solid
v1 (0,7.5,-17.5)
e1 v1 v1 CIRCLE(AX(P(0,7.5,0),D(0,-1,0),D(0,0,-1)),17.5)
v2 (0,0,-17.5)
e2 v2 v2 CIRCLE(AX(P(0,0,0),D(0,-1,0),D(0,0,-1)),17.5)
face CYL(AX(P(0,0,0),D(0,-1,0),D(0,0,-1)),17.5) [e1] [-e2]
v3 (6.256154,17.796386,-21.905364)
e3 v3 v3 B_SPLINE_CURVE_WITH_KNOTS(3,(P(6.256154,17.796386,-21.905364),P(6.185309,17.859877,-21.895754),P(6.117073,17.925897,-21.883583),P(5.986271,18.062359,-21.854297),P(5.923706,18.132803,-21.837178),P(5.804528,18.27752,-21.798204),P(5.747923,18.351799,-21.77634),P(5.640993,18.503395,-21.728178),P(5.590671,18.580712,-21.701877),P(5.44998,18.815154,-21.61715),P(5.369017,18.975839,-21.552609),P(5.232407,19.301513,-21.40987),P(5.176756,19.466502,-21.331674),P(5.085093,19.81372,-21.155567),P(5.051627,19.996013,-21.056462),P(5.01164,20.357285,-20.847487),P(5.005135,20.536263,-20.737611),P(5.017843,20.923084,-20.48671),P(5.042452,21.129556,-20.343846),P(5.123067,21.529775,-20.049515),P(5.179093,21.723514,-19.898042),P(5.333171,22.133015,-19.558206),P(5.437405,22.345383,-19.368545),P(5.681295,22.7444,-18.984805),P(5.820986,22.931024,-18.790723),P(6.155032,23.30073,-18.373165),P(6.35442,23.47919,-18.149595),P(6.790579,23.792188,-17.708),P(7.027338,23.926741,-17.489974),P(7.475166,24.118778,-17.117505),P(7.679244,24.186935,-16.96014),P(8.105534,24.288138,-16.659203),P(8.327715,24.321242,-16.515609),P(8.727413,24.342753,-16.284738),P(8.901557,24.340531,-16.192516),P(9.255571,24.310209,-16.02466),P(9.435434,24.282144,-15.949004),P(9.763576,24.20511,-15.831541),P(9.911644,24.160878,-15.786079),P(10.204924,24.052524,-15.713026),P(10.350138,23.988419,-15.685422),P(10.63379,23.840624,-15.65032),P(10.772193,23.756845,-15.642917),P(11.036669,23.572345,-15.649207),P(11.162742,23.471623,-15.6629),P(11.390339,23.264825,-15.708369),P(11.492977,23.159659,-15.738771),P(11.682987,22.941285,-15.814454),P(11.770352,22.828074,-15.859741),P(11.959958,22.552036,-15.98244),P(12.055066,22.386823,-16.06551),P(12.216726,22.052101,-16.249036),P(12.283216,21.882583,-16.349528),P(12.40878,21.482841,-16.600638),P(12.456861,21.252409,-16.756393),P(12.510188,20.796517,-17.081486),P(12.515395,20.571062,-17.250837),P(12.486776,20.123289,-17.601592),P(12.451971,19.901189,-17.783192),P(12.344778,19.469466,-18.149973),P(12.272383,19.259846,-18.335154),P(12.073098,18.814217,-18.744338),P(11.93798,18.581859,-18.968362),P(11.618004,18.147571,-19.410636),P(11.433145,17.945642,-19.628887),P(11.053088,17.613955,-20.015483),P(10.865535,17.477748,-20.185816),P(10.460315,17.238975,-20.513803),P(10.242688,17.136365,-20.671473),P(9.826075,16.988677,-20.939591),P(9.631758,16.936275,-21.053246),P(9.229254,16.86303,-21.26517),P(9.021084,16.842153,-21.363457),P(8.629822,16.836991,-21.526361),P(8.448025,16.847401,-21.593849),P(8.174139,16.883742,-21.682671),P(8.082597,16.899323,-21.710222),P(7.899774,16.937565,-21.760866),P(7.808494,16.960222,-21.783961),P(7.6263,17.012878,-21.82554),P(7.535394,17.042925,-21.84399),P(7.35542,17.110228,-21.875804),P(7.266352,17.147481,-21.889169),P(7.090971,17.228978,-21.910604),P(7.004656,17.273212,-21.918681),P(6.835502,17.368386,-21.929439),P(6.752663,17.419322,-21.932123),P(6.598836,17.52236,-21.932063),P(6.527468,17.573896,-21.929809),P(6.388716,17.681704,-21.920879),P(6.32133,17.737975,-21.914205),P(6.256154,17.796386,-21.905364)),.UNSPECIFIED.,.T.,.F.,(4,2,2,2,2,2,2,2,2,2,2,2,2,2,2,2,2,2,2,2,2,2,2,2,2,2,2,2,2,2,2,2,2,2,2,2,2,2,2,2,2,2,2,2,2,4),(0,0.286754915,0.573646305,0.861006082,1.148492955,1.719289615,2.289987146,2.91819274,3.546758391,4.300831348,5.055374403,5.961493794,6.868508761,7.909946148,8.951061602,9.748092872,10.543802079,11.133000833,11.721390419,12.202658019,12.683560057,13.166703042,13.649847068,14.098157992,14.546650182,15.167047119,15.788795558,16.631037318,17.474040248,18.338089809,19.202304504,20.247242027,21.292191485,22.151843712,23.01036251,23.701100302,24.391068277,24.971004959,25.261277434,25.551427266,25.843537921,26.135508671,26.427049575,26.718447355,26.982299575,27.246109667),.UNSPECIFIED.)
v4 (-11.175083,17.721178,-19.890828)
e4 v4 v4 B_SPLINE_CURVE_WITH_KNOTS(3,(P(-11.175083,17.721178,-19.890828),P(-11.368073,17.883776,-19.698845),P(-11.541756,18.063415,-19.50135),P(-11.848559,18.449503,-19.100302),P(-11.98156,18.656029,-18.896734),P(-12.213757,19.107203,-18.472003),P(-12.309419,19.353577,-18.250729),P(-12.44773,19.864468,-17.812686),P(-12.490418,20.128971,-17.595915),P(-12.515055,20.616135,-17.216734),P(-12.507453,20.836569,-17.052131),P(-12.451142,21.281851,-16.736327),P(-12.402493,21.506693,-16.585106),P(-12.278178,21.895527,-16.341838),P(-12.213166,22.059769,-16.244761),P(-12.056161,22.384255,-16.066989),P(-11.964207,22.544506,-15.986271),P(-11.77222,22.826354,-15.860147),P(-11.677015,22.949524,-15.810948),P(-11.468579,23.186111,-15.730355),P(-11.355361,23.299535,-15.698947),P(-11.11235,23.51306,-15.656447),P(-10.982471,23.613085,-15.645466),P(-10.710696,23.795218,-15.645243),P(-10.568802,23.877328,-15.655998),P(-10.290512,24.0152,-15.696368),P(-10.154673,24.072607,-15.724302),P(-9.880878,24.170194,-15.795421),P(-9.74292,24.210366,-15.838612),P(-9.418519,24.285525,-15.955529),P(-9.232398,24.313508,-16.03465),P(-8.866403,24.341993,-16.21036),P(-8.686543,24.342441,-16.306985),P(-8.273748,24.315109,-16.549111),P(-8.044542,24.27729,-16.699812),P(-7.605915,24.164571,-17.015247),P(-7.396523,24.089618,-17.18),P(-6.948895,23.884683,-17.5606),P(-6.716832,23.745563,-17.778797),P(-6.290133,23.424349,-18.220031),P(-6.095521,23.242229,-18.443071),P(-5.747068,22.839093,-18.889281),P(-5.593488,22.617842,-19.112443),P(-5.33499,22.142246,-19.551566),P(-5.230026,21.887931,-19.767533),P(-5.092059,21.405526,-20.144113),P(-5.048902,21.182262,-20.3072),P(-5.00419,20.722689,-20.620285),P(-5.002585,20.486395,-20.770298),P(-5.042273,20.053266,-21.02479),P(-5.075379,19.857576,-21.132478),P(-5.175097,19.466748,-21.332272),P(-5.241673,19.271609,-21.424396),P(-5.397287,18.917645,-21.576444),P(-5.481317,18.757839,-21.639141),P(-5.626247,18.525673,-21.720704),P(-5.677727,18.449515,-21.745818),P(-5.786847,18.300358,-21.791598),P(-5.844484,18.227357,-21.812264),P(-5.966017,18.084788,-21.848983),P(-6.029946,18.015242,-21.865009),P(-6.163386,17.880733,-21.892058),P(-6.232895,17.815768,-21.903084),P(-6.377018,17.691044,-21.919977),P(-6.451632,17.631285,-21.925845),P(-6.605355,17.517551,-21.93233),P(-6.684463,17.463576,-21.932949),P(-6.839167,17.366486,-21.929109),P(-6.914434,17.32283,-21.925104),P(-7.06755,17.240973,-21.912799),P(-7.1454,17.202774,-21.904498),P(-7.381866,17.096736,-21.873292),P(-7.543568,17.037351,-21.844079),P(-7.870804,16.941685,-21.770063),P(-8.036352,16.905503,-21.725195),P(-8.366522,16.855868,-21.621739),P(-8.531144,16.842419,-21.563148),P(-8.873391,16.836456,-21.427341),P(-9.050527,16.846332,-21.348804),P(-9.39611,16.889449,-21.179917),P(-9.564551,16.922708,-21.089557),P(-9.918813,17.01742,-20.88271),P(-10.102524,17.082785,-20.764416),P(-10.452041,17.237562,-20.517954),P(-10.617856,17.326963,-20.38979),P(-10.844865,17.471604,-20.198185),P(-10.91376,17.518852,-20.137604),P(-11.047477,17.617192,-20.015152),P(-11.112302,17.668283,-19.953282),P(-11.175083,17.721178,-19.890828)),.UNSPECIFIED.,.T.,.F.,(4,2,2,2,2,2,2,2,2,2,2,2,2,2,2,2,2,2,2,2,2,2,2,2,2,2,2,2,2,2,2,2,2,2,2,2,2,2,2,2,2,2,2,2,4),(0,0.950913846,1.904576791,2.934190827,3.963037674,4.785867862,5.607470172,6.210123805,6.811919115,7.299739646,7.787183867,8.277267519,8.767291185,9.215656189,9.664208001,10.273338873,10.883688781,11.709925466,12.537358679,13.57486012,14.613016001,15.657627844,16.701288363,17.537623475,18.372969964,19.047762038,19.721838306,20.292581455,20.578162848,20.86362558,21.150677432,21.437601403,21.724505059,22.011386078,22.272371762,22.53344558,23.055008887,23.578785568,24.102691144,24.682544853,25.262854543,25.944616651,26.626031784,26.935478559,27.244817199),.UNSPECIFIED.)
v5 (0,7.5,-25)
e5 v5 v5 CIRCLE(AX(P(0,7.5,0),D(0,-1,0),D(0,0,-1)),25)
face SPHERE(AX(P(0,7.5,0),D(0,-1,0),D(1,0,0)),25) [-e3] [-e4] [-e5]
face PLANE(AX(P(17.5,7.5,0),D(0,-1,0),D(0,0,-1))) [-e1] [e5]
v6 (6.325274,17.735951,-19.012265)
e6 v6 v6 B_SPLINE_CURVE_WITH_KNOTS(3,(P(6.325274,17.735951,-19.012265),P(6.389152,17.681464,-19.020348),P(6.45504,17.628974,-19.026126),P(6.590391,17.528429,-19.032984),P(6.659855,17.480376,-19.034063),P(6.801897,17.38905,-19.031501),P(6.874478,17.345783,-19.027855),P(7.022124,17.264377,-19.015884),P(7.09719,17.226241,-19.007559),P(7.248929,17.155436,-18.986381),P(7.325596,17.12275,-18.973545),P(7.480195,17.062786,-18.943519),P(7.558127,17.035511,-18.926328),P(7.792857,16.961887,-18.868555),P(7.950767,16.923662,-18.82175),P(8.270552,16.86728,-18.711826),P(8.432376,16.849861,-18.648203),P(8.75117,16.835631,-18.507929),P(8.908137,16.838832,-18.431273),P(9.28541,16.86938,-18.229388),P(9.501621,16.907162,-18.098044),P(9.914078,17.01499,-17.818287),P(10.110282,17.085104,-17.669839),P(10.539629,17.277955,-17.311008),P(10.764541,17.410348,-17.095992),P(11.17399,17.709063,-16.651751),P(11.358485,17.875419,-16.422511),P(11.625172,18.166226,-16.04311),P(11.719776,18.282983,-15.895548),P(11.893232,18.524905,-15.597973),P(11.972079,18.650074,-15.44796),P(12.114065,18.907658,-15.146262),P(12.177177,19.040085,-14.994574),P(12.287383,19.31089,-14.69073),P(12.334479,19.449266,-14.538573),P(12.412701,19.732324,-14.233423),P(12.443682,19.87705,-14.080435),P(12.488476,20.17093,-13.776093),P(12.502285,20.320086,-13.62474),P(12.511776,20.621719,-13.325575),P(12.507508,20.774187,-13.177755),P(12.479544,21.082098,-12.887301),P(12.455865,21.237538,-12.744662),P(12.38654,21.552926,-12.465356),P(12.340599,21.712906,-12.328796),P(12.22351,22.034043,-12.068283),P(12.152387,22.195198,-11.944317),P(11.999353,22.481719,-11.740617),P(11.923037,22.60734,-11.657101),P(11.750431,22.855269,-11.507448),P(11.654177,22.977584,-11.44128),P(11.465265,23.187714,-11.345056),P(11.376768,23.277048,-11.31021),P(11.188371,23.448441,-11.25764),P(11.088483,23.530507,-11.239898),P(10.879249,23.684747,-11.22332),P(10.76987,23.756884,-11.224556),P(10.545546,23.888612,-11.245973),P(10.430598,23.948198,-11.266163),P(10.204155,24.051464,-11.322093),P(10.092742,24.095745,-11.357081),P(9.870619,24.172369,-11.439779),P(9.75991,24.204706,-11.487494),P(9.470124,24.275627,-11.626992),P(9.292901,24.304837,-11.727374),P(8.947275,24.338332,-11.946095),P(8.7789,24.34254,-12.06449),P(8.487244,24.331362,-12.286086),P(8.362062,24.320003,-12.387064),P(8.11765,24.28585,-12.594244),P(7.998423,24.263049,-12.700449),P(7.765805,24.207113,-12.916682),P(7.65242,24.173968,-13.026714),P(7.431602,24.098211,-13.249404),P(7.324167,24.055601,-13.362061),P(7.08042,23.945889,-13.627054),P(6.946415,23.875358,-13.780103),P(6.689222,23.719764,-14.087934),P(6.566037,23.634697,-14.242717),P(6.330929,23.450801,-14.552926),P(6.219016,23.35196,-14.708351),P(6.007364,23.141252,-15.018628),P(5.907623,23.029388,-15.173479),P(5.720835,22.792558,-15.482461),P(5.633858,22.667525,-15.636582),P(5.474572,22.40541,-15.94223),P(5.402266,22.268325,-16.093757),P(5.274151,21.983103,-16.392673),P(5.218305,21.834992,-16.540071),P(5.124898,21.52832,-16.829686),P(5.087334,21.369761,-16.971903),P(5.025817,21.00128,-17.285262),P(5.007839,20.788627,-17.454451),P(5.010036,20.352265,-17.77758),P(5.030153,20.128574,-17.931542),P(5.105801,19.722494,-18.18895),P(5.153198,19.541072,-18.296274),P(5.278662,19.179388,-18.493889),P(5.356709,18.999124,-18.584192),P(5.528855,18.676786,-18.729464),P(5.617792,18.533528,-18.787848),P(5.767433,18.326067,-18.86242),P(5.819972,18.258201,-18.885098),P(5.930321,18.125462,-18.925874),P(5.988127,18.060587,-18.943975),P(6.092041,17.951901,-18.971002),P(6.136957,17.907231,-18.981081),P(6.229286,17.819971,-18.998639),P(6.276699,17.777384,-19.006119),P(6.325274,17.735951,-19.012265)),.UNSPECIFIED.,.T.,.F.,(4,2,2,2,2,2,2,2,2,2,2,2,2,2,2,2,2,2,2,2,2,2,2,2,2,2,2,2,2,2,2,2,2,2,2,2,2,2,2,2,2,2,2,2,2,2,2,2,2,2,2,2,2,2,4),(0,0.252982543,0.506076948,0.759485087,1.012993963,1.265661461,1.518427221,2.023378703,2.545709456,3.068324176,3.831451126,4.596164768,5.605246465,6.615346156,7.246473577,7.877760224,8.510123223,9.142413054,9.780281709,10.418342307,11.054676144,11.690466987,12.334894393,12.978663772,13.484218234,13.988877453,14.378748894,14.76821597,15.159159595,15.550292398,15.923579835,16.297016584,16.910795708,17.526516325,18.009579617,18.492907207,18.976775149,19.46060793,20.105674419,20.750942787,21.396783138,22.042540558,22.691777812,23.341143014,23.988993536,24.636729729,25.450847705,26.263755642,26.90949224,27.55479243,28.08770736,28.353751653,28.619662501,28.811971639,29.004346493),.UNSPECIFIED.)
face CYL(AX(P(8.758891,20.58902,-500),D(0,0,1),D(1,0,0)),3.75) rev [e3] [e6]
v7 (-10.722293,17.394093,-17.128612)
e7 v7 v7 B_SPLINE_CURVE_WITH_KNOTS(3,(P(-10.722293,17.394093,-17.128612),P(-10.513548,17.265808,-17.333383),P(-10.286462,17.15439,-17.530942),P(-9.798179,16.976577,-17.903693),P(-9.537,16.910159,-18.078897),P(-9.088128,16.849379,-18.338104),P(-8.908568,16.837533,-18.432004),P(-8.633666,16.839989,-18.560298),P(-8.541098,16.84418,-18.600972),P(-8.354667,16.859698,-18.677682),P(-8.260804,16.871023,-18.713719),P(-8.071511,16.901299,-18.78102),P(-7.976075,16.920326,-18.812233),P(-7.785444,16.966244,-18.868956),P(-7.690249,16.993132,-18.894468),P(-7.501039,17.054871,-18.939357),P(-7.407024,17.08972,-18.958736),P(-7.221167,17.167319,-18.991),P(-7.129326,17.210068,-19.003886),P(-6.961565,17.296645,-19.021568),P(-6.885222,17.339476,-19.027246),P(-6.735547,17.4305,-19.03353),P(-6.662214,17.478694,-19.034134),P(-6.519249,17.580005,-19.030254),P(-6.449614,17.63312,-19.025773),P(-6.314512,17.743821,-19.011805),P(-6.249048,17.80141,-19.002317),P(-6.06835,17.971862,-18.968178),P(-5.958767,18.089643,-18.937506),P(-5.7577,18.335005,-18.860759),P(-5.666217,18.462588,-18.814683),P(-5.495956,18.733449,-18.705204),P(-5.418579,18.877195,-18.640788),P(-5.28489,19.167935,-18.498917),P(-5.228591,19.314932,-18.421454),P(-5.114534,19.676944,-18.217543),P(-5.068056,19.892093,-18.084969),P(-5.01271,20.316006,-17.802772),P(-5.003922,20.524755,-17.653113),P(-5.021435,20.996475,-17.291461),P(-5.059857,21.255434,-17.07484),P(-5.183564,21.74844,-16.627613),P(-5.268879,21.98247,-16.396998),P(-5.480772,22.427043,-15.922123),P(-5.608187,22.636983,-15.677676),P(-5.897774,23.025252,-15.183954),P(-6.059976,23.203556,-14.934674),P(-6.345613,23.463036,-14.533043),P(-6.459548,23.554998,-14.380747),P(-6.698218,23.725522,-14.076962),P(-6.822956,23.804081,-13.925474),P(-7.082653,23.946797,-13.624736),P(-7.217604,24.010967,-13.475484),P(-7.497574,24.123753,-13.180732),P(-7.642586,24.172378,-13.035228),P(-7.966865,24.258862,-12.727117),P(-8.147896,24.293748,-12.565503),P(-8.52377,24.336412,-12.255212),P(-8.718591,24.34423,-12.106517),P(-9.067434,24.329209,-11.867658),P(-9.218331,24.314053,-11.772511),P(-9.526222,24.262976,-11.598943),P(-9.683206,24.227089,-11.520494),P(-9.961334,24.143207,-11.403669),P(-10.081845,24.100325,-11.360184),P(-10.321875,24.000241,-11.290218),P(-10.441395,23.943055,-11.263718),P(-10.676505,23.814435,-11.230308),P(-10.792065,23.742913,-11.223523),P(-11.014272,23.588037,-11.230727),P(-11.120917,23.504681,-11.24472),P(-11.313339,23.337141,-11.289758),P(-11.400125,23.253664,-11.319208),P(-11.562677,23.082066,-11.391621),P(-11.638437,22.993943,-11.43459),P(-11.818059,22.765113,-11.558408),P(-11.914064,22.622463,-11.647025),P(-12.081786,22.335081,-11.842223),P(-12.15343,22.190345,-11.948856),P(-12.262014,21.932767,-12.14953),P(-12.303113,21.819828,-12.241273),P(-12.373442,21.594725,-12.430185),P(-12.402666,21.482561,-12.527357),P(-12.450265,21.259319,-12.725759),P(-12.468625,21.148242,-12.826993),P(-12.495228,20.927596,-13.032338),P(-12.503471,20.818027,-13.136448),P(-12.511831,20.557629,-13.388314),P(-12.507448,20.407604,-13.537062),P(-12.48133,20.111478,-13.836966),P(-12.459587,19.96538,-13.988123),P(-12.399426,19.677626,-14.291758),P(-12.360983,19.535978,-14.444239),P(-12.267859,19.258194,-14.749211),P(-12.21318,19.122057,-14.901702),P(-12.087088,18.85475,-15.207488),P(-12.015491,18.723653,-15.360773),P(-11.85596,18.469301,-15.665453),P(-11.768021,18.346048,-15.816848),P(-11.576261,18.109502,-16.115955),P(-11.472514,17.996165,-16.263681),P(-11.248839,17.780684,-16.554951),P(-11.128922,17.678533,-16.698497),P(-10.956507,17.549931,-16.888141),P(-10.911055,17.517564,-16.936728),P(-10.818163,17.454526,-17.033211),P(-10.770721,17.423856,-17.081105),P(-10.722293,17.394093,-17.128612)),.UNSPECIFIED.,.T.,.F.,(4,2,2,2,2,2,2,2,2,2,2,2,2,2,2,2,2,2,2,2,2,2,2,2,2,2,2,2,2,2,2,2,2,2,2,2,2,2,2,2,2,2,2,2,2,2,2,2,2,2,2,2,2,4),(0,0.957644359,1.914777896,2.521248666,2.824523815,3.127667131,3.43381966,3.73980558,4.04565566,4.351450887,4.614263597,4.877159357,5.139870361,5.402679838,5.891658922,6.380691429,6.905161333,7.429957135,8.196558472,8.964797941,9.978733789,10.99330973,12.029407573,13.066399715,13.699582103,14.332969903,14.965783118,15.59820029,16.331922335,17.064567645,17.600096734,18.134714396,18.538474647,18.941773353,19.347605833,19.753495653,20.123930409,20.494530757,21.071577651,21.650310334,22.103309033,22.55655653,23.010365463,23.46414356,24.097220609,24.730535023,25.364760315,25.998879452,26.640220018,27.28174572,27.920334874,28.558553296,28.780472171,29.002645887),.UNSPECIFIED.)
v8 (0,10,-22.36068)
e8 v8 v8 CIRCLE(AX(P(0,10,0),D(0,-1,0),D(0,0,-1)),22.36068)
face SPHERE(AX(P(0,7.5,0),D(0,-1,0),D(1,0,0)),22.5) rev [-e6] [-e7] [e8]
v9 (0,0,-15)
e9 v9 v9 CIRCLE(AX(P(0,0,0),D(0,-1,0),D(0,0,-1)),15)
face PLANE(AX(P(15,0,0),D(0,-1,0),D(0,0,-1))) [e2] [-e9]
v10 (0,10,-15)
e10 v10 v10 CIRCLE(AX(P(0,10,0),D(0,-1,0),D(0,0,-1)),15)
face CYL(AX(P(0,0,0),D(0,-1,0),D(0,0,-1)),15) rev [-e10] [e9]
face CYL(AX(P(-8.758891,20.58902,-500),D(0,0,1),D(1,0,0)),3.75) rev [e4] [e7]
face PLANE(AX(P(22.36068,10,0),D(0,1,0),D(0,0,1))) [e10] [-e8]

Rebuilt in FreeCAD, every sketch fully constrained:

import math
import FreeCAD as App
import Part
import Sketcher
Q = App.Units.Quantity

doc = App.newDocument("Part")
body = doc.addObject("PartDesign::Body", "Body")

sketch1 = body.newObject("Sketcher::SketchObject", "Sketch")
sketch1.AttachmentSupport = (doc.getObject("XY_Plane"), [""])
sketch1.MapMode = "FlatFace"
sketch1.addGeometry([
    Part.LineSegment(App.Vector(17.5, 0, 0), App.Vector(17.5, 7.5, 0)),
    Part.LineSegment(App.Vector(17.5, 7.5, 0), App.Vector(25, 7.5, 0)),
    Part.ArcOfCircle(Part.Circle(App.Vector(0, 7.5, 0), App.Vector(0, 0, 1), 25), math.radians(0), math.radians(90)),
    Part.LineSegment(App.Vector(0, 32.5, 0), App.Vector(0, 30, 0)),
    Part.ArcOfCircle(Part.Circle(App.Vector(0, 7.5, 0), App.Vector(0, 0, 1), 22.5), math.radians(6.37937), math.radians(90)),
    Part.LineSegment(App.Vector(22.36068, 10, 0), App.Vector(15, 10, 0)),
    Part.LineSegment(App.Vector(15, 10, 0), App.Vector(15, 0, 0)),
    Part.LineSegment(App.Vector(15, 0, 0), App.Vector(17.5, 0, 0)),
], False)
sketch1.addConstraint([
    Sketcher.Constraint("Coincident", 0, 2, 1, 1),
    Sketcher.Constraint("Coincident", 1, 2, 2, 1),
    Sketcher.Constraint("Coincident", 2, 2, 3, 1),
    Sketcher.Constraint("Coincident", 3, 2, 4, 2),
    Sketcher.Constraint("Coincident", 4, 1, 5, 1),
    Sketcher.Constraint("Coincident", 5, 2, 6, 1),
    Sketcher.Constraint("Coincident", 6, 2, 7, 1),
    Sketcher.Constraint("Coincident", 7, 2, 0, 1),
    Sketcher.Constraint("Vertical", 0),
    Sketcher.Constraint("Horizontal", 1),
    Sketcher.Constraint("Vertical", 3),
    Sketcher.Constraint("Horizontal", 5),
    Sketcher.Constraint("Vertical", 6),
    Sketcher.Constraint("Horizontal", 7),
    Sketcher.Constraint("Coincident", 4, 3, 2, 3),
    Sketcher.Constraint("PointOnObject", 2, 3, -2),
    Sketcher.Constraint("PointOnObject", 2, 2, -2),
    Sketcher.Constraint("PointOnObject", 6, 2, -1),
    Sketcher.Constraint("Horizontal", 4, 3, 0, 2),
    Sketcher.Constraint("Equal", 1, 0),
    Sketcher.Constraint("Equal", 7, 3),
    Sketcher.Constraint("Radius", 2, Q("25 mm")),
    Sketcher.Constraint("Radius", 4, Q("22.5 mm")),
    Sketcher.Constraint("DistanceY", 6, 2, 6, 1, Q("10 mm")),
    Sketcher.Constraint("DistanceX", 1, 1, 1, 2, Q("7.5 mm")),
])
revolution = body.newObject("PartDesign::Revolution", "Revolution")
revolution.Profile = sketch1
revolution.ReferenceAxis = (sketch1, ["V_Axis"])
revolution.Angle = 360

sketch2 = body.newObject("Sketcher::SketchObject", "Sketch001")
sketch2.AttachmentSupport = (doc.getObject("XY_Plane"), [""])
sketch2.MapMode = "FlatFace"
sketch2.addGeometry([
    Part.Circle(App.Vector(8.758891, 20.58902, 0), App.Vector(0, 0, 1), 3.75),
    Part.Circle(App.Vector(-8.758891, 20.58902, 0), App.Vector(0, 0, 1), 3.75),
], False)
sketch2.addConstraint([
    Sketcher.Constraint("Equal", 0, 1),
    Sketcher.Constraint("Symmetric", 0, 3, 1, 3, -2),
    Sketcher.Constraint("Diameter", 0, Q("7.5 mm")),
    Sketcher.Constraint("DistanceX", -1, 1, 0, 3, Q("8.758891 mm")),
    Sketcher.Constraint("DistanceY", -1, 1, 0, 3, Q("20.58902 mm")),
])
pocket1 = body.newObject("PartDesign::Pocket", "Pocket")
pocket1.Profile = sketch2
pocket1.Length = 500

doc.recompute()
